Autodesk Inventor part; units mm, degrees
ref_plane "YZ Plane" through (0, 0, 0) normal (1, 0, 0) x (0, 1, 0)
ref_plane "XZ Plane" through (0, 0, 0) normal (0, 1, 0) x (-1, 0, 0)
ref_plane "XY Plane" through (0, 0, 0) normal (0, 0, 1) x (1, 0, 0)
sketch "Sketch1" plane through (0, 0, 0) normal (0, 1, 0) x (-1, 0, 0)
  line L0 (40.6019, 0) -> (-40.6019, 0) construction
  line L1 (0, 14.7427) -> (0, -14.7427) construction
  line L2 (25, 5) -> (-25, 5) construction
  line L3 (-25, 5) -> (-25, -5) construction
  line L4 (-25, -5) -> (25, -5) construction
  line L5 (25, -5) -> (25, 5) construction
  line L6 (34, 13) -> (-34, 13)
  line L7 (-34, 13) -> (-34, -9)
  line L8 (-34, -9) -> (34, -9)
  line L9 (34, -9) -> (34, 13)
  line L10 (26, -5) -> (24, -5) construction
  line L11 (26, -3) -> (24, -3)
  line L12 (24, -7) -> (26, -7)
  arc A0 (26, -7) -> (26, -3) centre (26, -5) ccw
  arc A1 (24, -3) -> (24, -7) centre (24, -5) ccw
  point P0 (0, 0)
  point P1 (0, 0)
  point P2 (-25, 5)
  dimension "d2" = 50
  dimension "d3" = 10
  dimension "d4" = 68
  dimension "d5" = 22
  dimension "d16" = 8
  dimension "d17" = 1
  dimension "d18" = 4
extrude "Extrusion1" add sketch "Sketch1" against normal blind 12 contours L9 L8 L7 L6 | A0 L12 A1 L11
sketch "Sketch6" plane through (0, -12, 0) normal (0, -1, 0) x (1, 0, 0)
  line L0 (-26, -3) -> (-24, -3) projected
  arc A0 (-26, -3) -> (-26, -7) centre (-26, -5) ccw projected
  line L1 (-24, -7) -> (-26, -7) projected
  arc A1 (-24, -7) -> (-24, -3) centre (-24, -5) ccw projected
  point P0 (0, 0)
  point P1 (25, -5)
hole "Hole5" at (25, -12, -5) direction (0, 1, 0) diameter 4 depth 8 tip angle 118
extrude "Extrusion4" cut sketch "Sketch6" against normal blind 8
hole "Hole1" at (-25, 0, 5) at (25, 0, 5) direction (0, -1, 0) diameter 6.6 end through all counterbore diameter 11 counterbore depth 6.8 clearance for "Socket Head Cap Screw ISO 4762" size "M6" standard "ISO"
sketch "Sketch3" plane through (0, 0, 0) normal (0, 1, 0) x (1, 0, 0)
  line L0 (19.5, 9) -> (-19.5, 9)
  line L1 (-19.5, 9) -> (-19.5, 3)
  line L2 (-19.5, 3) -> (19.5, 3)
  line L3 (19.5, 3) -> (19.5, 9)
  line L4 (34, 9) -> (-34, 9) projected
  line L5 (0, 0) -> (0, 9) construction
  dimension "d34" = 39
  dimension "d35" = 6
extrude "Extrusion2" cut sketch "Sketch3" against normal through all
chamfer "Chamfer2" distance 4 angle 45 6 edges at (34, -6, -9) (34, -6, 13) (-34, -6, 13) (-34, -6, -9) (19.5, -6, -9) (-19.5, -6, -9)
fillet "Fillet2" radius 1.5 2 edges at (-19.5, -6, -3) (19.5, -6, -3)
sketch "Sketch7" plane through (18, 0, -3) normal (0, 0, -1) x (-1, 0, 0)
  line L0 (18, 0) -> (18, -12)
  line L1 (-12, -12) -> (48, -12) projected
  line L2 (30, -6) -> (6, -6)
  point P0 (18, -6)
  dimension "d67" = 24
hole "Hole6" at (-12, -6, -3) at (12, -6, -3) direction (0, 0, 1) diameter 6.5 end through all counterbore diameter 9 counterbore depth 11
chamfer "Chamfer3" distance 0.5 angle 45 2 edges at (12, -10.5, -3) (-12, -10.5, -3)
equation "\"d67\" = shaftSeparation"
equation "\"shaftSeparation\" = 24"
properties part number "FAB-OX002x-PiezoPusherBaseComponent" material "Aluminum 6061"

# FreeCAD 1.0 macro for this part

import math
import FreeCAD as App
import Part
import Sketcher
from FreeCAD import Vector


def edges_at(feature, points):
    """Names of the edges that pass closest to the given points."""
    edges = feature.Shape.Edges
    near = lambda p: min(range(len(edges)), key=lambda i: edges[i].distToShape(Part.Vertex(*p))[0])
    return sorted({f"Edge{near(p) + 1}" for p in points})

doc = App.newDocument("Part")
body = doc.addObject("PartDesign::Body", "Body")

# Sketch on XZ plane
sketch1 = body.newObject("Sketcher::SketchObject", "Sketch")
sketch1.AttachmentSupport = (doc.getObject("XZ_Plane"), [""])
sketch1.MapMode = "FlatFace"
sketch1.addGeometry([
    Part.LineSegment(Vector(-34, -9, 0), Vector(-34, 13, 0)),
    Part.LineSegment(Vector(-34, 13, 0), Vector(34, 13, 0)),
    Part.LineSegment(Vector(34, 13, 0), Vector(34, -9, 0)),
    Part.LineSegment(Vector(34, -9, 0), Vector(-34, -9, 0)),
], False)
sketch1.addConstraint([
    Sketcher.Constraint("Coincident", 0, 2, 1, 1),
    Sketcher.Constraint("Coincident", 1, 2, 2, 1),
    Sketcher.Constraint("Coincident", 2, 2, 3, 1),
    Sketcher.Constraint("Coincident", 3, 2, 0, 1),
    Sketcher.Constraint("Vertical", 0),
    Sketcher.Constraint("Horizontal", 1),
    Sketcher.Constraint("Vertical", 2),
    Sketcher.Constraint("Horizontal", 3),
    Sketcher.Constraint("DistanceX", 1, 1, 1, 2, 68.0),
    Sketcher.Constraint("DistanceY", 0, 1, 0, 2, 22.0),
    Sketcher.Constraint("DistanceX", 0, 2, -1, 1, 34.0),
    Sketcher.Constraint("DistanceY", -1, 1, 0, 2, 13.0),
])
pad1 = body.newObject("PartDesign::Pad", "Pad")
pad1.Profile = sketch1
pad1.Length = 12

# Sketch on XZ plane
sketch2 = body.newObject("Sketcher::SketchObject", "Sketch001")
sketch2.AttachmentSupport = (doc.getObject("XZ_Plane"), [""])
sketch2.MapMode = "FlatFace"
sketch2.AttachmentOffset = App.Placement(Vector(0, 0, 12), App.Rotation())
sketch2.addGeometry(Part.Circle(Vector(25, -5, 0), Vector(0, 0, 1), 2), False)
sketch2.addConstraint([
    Sketcher.Constraint("Diameter", 0, 4.0),
    Sketcher.Constraint("DistanceX", -1, 1, 0, 3, 25.0),
    Sketcher.Constraint("DistanceY", 0, 3, -1, 1, 5.0),
])
doc.recompute()
hole = body.newObject("PartDesign::Hole", "Hole")
hole.Profile = sketch2
hole.ThreadType = "None"
hole.Diameter = 4
hole.DepthType = "Dimension"
hole.Depth = 8
hole.DrillPoint = "Angled"
hole.DrillPointAngle = 118

# Sketch on XZ plane
sketch3 = body.newObject("Sketcher::SketchObject", "Sketch002")
sketch3.AttachmentSupport = (doc.getObject("XZ_Plane"), [""])
sketch3.MapMode = "FlatFace"
sketch3.AttachmentOffset = App.Placement(Vector(0, 0, 12), App.Rotation())
sketch3.addGeometry([
    Part.LineSegment(Vector(-24, -3, 0), Vector(-26, -3, 0)),
    Part.ArcOfCircle(Part.Circle(Vector(-26, -5, 0), Vector(0, 0, 1), 2), math.radians(90), math.radians(270)),
    Part.LineSegment(Vector(-26, -7, 0), Vector(-24, -7, 0)),
    Part.ArcOfCircle(Part.Circle(Vector(-24, -5, 0), Vector(0, 0, 1), 2), math.radians(-90), math.radians(90)),
], False)
sketch3.addConstraint([
    Sketcher.Constraint("Tangent", 0, 2, 1, 1),
    Sketcher.Constraint("Tangent", 1, 2, 2, 1),
    Sketcher.Constraint("Tangent", 2, 2, 3, 1),
    Sketcher.Constraint("Tangent", 3, 2, 0, 1),
    Sketcher.Constraint("Horizontal", 0),
    Sketcher.Constraint("Horizontal", 2),
    Sketcher.Constraint("Radius", 1, 2.0),
    Sketcher.Constraint("DistanceX", 0, 2, 0, 1, 2.0),
    Sketcher.Constraint("DistanceX", 1, 3, -1, 1, 26.0),
    Sketcher.Constraint("DistanceY", 1, 3, -1, 1, 5.0),
])
pocket1 = body.newObject("PartDesign::Pocket", "Pocket")
pocket1.Profile = sketch3
pocket1.Length = 8

# Sketch on XZ plane
sketch4 = body.newObject("Sketcher::SketchObject", "Sketch003")
sketch4.AttachmentSupport = (doc.getObject("XZ_Plane"), [""])
sketch4.MapMode = "FlatFace"
sketch4.addGeometry([
    Part.Circle(Vector(-25, 5, 0), Vector(0, 0, 1), 3.3),
    Part.Circle(Vector(25, 5, 0), Vector(0, 0, 1), 3.3),
], False)
sketch4.addConstraint([
    Sketcher.Constraint("Equal", 0, 1),
    Sketcher.Constraint("Symmetric", 0, 3, 1, 3, -2),
    Sketcher.Constraint("Diameter", 0, 6.6),
    Sketcher.Constraint("DistanceX", 0, 3, -1, 1, 25.0),
    Sketcher.Constraint("DistanceY", -1, 1, 0, 3, 5.0),
])
doc.recompute()
hole2 = body.newObject("PartDesign::Hole", "Hole001")
hole2.Profile = sketch4
hole2.ThreadType = "None"
hole2.Diameter = 6.6
hole2.DepthType = "ThroughAll"
hole2.HoleCutType = "Counterbore"
hole2.HoleCutDiameter = 11
hole2.HoleCutDepth = 6.8
hole2.Reversed = True

# Sketch on XZ plane
sketch5 = body.newObject("Sketcher::SketchObject", "Sketch004")
sketch5.AttachmentSupport = (doc.getObject("XZ_Plane"), [""])
sketch5.MapMode = "FlatFace"
sketch5.addGeometry([
    Part.LineSegment(Vector(20, -3, 0), Vector(20, -9, 0)),
    Part.LineSegment(Vector(20, -9, 0), Vector(-20, -9, 0)),
    Part.LineSegment(Vector(-20, -9, 0), Vector(-20, -3, 0)),
    Part.LineSegment(Vector(-20, -3, 0), Vector(20, -3, 0)),
], False)
sketch5.addConstraint([
    Sketcher.Constraint("Coincident", 0, 2, 1, 1),
    Sketcher.Constraint("Coincident", 1, 2, 2, 1),
    Sketcher.Constraint("Coincident", 2, 2, 3, 1),
    Sketcher.Constraint("Coincident", 3, 2, 0, 1),
    Sketcher.Constraint("Vertical", 0),
    Sketcher.Constraint("Horizontal", 1),
    Sketcher.Constraint("Vertical", 2),
    Sketcher.Constraint("Horizontal", 3),
    Sketcher.Constraint("DistanceX", 1, 2, 1, 1, 39.0),
    Sketcher.Constraint("DistanceY", 0, 2, 0, 1, 6.0),
    Sketcher.Constraint("DistanceY", 0, 2, -1, 1, 9.0),
    Sketcher.Constraint("DistanceX", -1, 1, 0, 2, 19.5),
])
pocket2 = body.newObject("PartDesign::Pocket", "Pocket001")
pocket2.Profile = sketch5
pocket2.Type = "ThroughAll"
pocket2.Reversed = True
doc.recompute()

chamfer = body.newObject("PartDesign::Chamfer", "Chamfer")
chamfer.Base = (pocket2, edges_at(pocket2, [
    (34, -6, -9),
    (34, -6, 13),
    (-34, -6, 13),
    (-34, -6, -9),
    (19.5, -6, -9),
    (-19.5, -6, -9),
]))
chamfer.Size = 4
doc.recompute()

fillet = body.newObject("PartDesign::Fillet", "Fillet")
fillet.Base = (chamfer, edges_at(chamfer, [(-19.5, -6, -3), (19.5, -6, -3)]))
fillet.Radius = 1.5

# Sketch on XY plane
sketch6 = body.newObject("Sketcher::SketchObject", "Sketch005")
sketch6.AttachmentSupport = (doc.getObject("XY_Plane"), [""])
sketch6.MapMode = "FlatFace"
sketch6.AttachmentOffset = App.Placement(Vector(0, 0, -3), App.Rotation())
sketch6.addGeometry([
    Part.Circle(Vector(-12, -6, 0), Vector(0, 0, 1), 3.2),
    Part.Circle(Vector(12, -6, 0), Vector(0, 0, 1), 3.2),
], False)
sketch6.addConstraint([
    Sketcher.Constraint("Equal", 0, 1),
    Sketcher.Constraint("Symmetric", 0, 3, 1, 3, -2),
    Sketcher.Constraint("Diameter", 0, 6.5),
    Sketcher.Constraint("DistanceX", 0, 3, -1, 1, 12.0),
    Sketcher.Constraint("DistanceY", 0, 3, -1, 1, 6.0),
])
doc.recompute()
hole3 = body.newObject("PartDesign::Hole", "Hole002")
hole3.Profile = sketch6
hole3.ThreadType = "None"
hole3.Diameter = 6.5
hole3.DepthType = "ThroughAll"
hole3.HoleCutType = "Counterbore"
hole3.HoleCutDiameter = 9
hole3.HoleCutDepth = 11
hole3.Reversed = True
doc.recompute()

chamfer2 = body.newObject("PartDesign::Chamfer", "Chamfer001")
chamfer2.Base = (hole3, edges_at(hole3, [(12, -10.5, -3), (-12, -10.5, -3)]))
chamfer2.Size = 0.5

doc.recompute()
